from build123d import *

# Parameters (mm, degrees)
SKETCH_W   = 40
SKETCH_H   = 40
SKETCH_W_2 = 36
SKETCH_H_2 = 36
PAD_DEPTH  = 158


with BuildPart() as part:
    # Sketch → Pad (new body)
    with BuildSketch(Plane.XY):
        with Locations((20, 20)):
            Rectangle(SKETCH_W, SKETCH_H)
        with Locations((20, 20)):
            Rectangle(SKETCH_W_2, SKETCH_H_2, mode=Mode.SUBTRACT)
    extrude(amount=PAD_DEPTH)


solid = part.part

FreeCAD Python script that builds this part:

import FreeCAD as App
import Part
import Sketcher
Q = App.Units.Quantity

doc = App.newDocument("Part")
body = doc.addObject("PartDesign::Body", "Body")

sketch1 = body.newObject("Sketcher::SketchObject", "Sketch")
sketch1.AttachmentSupport = (doc.getObject("XY_Plane"), [""])
sketch1.MapMode = "FlatFace"
sketch1.addGeometry([
    Part.LineSegment(App.Vector(0, 40, 0), App.Vector(0, 0, 0)),
    Part.LineSegment(App.Vector(0, 0, 0), App.Vector(40, 0, 0)),
    Part.LineSegment(App.Vector(40, 0, 0), App.Vector(40, 40, 0)),
    Part.LineSegment(App.Vector(40, 40, 0), App.Vector(0, 40, 0)),
    Part.LineSegment(App.Vector(38, 2, 0), App.Vector(2, 2, 0)),
    Part.LineSegment(App.Vector(2, 2, 0), App.Vector(2, 38, 0)),
    Part.LineSegment(App.Vector(2, 38, 0), App.Vector(38, 38, 0)),
    Part.LineSegment(App.Vector(38, 38, 0), App.Vector(38, 2, 0)),
], False)
sketch1.addConstraint([
    Sketcher.Constraint("Coincident", 0, 2, 1, 1),
    Sketcher.Constraint("Coincident", 1, 2, 2, 1),
    Sketcher.Constraint("Coincident", 2, 2, 3, 1),
    Sketcher.Constraint("Coincident", 3, 2, 0, 1),
    Sketcher.Constraint("Coincident", 4, 2, 5, 1),
    Sketcher.Constraint("Coincident", 5, 2, 6, 1),
    Sketcher.Constraint("Coincident", 6, 2, 7, 1),
    Sketcher.Constraint("Coincident", 7, 2, 4, 1),
    Sketcher.Constraint("Vertical", 0),
    Sketcher.Constraint("Horizontal", 1),
    Sketcher.Constraint("Vertical", 2),
    Sketcher.Constraint("Horizontal", 3),
    Sketcher.Constraint("Horizontal", 4),
    Sketcher.Constraint("Vertical", 5),
    Sketcher.Constraint("Horizontal", 6),
    Sketcher.Constraint("Vertical", 7),
    Sketcher.Constraint("Coincident", 0, 2, -1, 1),
    Sketcher.Constraint("Equal", 3, 0),
    Sketcher.Constraint("Equal", 6, 5),
    Sketcher.Constraint("DistanceX", 1, 1, 1, 2, Q("40 mm")),
    Sketcher.Constraint("DistanceX", 4, 2, 4, 1, Q("36 mm")),
    Sketcher.Constraint("DistanceX", -1, 1, 4, 2, Q("2 mm")),
    Sketcher.Constraint("DistanceY", -1, 1, 4, 2, Q("2 mm")),
])
pad1 = body.newObject("PartDesign::Pad", "Pad")
pad1.Profile = sketch1
pad1.Length = 158

doc.recompute()
